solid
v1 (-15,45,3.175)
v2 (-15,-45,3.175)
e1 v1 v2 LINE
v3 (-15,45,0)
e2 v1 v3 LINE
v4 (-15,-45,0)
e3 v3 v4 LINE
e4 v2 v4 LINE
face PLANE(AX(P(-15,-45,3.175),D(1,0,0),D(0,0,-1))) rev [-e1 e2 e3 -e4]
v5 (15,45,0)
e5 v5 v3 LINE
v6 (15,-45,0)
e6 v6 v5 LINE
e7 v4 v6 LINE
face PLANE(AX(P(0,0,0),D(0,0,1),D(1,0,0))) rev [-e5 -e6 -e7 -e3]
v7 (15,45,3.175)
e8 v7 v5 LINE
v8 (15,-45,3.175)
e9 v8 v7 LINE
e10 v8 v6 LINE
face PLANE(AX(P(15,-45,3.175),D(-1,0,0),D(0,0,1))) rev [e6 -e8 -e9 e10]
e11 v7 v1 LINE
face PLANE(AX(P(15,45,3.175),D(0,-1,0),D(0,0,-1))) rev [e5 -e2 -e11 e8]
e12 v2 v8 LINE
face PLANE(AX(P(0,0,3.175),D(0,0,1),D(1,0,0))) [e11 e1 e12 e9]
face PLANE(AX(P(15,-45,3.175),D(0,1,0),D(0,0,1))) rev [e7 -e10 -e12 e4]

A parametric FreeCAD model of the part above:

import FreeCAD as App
import Part
import Sketcher
from FreeCAD import Vector
Q = App.Units.Quantity

doc = App.newDocument("Part")
body = doc.addObject("PartDesign::Body", "Body")

sketch1 = body.newObject("Sketcher::SketchObject", "Sketch")
sketch1.AttachmentSupport = (doc.getObject("XY_Plane"), [""])
sketch1.MapMode = "FlatFace"
sketch1.addGeometry(Part.LineSegment(Vector(-15, 45, 0), Vector(-15, -45, 0)), False)
sketch1.addGeometry(Part.LineSegment(Vector(-15, -45, 0), Vector(15, -45, 0)), False)
sketch1.addGeometry(Part.LineSegment(Vector(15, -45, 0), Vector(15, 45, 0)), False)
sketch1.addGeometry(Part.LineSegment(Vector(15, 45, 0), Vector(-15, 45, 0)), False)
sketch1.addConstraint(Sketcher.Constraint("Coincident", 0, 2, 1, 1))
sketch1.addConstraint(Sketcher.Constraint("Coincident", 1, 2, 2, 1))
sketch1.addConstraint(Sketcher.Constraint("Coincident", 2, 2, 3, 1))
sketch1.addConstraint(Sketcher.Constraint("Coincident", 3, 2, 0, 1))
sketch1.addConstraint(Sketcher.Constraint("Vertical", 0))
sketch1.addConstraint(Sketcher.Constraint("Horizontal", 1))
sketch1.addConstraint(Sketcher.Constraint("Vertical", 2))
sketch1.addConstraint(Sketcher.Constraint("Horizontal", 3))
sketch1.addConstraint(Sketcher.Constraint("Symmetric", 0, 2, 2, 2, -1, 1))
sketch1.addConstraint(Sketcher.Constraint("DistanceX", 1, 1, 1, 2, Q("30 mm")))
sketch1.addConstraint(Sketcher.Constraint("DistanceY", 0, 2, 0, 1, Q("90 mm")))
pad1 = body.newObject("PartDesign::Pad", "Pad")
pad1.Profile = sketch1
pad1.Length = 3.175

doc.recompute()
